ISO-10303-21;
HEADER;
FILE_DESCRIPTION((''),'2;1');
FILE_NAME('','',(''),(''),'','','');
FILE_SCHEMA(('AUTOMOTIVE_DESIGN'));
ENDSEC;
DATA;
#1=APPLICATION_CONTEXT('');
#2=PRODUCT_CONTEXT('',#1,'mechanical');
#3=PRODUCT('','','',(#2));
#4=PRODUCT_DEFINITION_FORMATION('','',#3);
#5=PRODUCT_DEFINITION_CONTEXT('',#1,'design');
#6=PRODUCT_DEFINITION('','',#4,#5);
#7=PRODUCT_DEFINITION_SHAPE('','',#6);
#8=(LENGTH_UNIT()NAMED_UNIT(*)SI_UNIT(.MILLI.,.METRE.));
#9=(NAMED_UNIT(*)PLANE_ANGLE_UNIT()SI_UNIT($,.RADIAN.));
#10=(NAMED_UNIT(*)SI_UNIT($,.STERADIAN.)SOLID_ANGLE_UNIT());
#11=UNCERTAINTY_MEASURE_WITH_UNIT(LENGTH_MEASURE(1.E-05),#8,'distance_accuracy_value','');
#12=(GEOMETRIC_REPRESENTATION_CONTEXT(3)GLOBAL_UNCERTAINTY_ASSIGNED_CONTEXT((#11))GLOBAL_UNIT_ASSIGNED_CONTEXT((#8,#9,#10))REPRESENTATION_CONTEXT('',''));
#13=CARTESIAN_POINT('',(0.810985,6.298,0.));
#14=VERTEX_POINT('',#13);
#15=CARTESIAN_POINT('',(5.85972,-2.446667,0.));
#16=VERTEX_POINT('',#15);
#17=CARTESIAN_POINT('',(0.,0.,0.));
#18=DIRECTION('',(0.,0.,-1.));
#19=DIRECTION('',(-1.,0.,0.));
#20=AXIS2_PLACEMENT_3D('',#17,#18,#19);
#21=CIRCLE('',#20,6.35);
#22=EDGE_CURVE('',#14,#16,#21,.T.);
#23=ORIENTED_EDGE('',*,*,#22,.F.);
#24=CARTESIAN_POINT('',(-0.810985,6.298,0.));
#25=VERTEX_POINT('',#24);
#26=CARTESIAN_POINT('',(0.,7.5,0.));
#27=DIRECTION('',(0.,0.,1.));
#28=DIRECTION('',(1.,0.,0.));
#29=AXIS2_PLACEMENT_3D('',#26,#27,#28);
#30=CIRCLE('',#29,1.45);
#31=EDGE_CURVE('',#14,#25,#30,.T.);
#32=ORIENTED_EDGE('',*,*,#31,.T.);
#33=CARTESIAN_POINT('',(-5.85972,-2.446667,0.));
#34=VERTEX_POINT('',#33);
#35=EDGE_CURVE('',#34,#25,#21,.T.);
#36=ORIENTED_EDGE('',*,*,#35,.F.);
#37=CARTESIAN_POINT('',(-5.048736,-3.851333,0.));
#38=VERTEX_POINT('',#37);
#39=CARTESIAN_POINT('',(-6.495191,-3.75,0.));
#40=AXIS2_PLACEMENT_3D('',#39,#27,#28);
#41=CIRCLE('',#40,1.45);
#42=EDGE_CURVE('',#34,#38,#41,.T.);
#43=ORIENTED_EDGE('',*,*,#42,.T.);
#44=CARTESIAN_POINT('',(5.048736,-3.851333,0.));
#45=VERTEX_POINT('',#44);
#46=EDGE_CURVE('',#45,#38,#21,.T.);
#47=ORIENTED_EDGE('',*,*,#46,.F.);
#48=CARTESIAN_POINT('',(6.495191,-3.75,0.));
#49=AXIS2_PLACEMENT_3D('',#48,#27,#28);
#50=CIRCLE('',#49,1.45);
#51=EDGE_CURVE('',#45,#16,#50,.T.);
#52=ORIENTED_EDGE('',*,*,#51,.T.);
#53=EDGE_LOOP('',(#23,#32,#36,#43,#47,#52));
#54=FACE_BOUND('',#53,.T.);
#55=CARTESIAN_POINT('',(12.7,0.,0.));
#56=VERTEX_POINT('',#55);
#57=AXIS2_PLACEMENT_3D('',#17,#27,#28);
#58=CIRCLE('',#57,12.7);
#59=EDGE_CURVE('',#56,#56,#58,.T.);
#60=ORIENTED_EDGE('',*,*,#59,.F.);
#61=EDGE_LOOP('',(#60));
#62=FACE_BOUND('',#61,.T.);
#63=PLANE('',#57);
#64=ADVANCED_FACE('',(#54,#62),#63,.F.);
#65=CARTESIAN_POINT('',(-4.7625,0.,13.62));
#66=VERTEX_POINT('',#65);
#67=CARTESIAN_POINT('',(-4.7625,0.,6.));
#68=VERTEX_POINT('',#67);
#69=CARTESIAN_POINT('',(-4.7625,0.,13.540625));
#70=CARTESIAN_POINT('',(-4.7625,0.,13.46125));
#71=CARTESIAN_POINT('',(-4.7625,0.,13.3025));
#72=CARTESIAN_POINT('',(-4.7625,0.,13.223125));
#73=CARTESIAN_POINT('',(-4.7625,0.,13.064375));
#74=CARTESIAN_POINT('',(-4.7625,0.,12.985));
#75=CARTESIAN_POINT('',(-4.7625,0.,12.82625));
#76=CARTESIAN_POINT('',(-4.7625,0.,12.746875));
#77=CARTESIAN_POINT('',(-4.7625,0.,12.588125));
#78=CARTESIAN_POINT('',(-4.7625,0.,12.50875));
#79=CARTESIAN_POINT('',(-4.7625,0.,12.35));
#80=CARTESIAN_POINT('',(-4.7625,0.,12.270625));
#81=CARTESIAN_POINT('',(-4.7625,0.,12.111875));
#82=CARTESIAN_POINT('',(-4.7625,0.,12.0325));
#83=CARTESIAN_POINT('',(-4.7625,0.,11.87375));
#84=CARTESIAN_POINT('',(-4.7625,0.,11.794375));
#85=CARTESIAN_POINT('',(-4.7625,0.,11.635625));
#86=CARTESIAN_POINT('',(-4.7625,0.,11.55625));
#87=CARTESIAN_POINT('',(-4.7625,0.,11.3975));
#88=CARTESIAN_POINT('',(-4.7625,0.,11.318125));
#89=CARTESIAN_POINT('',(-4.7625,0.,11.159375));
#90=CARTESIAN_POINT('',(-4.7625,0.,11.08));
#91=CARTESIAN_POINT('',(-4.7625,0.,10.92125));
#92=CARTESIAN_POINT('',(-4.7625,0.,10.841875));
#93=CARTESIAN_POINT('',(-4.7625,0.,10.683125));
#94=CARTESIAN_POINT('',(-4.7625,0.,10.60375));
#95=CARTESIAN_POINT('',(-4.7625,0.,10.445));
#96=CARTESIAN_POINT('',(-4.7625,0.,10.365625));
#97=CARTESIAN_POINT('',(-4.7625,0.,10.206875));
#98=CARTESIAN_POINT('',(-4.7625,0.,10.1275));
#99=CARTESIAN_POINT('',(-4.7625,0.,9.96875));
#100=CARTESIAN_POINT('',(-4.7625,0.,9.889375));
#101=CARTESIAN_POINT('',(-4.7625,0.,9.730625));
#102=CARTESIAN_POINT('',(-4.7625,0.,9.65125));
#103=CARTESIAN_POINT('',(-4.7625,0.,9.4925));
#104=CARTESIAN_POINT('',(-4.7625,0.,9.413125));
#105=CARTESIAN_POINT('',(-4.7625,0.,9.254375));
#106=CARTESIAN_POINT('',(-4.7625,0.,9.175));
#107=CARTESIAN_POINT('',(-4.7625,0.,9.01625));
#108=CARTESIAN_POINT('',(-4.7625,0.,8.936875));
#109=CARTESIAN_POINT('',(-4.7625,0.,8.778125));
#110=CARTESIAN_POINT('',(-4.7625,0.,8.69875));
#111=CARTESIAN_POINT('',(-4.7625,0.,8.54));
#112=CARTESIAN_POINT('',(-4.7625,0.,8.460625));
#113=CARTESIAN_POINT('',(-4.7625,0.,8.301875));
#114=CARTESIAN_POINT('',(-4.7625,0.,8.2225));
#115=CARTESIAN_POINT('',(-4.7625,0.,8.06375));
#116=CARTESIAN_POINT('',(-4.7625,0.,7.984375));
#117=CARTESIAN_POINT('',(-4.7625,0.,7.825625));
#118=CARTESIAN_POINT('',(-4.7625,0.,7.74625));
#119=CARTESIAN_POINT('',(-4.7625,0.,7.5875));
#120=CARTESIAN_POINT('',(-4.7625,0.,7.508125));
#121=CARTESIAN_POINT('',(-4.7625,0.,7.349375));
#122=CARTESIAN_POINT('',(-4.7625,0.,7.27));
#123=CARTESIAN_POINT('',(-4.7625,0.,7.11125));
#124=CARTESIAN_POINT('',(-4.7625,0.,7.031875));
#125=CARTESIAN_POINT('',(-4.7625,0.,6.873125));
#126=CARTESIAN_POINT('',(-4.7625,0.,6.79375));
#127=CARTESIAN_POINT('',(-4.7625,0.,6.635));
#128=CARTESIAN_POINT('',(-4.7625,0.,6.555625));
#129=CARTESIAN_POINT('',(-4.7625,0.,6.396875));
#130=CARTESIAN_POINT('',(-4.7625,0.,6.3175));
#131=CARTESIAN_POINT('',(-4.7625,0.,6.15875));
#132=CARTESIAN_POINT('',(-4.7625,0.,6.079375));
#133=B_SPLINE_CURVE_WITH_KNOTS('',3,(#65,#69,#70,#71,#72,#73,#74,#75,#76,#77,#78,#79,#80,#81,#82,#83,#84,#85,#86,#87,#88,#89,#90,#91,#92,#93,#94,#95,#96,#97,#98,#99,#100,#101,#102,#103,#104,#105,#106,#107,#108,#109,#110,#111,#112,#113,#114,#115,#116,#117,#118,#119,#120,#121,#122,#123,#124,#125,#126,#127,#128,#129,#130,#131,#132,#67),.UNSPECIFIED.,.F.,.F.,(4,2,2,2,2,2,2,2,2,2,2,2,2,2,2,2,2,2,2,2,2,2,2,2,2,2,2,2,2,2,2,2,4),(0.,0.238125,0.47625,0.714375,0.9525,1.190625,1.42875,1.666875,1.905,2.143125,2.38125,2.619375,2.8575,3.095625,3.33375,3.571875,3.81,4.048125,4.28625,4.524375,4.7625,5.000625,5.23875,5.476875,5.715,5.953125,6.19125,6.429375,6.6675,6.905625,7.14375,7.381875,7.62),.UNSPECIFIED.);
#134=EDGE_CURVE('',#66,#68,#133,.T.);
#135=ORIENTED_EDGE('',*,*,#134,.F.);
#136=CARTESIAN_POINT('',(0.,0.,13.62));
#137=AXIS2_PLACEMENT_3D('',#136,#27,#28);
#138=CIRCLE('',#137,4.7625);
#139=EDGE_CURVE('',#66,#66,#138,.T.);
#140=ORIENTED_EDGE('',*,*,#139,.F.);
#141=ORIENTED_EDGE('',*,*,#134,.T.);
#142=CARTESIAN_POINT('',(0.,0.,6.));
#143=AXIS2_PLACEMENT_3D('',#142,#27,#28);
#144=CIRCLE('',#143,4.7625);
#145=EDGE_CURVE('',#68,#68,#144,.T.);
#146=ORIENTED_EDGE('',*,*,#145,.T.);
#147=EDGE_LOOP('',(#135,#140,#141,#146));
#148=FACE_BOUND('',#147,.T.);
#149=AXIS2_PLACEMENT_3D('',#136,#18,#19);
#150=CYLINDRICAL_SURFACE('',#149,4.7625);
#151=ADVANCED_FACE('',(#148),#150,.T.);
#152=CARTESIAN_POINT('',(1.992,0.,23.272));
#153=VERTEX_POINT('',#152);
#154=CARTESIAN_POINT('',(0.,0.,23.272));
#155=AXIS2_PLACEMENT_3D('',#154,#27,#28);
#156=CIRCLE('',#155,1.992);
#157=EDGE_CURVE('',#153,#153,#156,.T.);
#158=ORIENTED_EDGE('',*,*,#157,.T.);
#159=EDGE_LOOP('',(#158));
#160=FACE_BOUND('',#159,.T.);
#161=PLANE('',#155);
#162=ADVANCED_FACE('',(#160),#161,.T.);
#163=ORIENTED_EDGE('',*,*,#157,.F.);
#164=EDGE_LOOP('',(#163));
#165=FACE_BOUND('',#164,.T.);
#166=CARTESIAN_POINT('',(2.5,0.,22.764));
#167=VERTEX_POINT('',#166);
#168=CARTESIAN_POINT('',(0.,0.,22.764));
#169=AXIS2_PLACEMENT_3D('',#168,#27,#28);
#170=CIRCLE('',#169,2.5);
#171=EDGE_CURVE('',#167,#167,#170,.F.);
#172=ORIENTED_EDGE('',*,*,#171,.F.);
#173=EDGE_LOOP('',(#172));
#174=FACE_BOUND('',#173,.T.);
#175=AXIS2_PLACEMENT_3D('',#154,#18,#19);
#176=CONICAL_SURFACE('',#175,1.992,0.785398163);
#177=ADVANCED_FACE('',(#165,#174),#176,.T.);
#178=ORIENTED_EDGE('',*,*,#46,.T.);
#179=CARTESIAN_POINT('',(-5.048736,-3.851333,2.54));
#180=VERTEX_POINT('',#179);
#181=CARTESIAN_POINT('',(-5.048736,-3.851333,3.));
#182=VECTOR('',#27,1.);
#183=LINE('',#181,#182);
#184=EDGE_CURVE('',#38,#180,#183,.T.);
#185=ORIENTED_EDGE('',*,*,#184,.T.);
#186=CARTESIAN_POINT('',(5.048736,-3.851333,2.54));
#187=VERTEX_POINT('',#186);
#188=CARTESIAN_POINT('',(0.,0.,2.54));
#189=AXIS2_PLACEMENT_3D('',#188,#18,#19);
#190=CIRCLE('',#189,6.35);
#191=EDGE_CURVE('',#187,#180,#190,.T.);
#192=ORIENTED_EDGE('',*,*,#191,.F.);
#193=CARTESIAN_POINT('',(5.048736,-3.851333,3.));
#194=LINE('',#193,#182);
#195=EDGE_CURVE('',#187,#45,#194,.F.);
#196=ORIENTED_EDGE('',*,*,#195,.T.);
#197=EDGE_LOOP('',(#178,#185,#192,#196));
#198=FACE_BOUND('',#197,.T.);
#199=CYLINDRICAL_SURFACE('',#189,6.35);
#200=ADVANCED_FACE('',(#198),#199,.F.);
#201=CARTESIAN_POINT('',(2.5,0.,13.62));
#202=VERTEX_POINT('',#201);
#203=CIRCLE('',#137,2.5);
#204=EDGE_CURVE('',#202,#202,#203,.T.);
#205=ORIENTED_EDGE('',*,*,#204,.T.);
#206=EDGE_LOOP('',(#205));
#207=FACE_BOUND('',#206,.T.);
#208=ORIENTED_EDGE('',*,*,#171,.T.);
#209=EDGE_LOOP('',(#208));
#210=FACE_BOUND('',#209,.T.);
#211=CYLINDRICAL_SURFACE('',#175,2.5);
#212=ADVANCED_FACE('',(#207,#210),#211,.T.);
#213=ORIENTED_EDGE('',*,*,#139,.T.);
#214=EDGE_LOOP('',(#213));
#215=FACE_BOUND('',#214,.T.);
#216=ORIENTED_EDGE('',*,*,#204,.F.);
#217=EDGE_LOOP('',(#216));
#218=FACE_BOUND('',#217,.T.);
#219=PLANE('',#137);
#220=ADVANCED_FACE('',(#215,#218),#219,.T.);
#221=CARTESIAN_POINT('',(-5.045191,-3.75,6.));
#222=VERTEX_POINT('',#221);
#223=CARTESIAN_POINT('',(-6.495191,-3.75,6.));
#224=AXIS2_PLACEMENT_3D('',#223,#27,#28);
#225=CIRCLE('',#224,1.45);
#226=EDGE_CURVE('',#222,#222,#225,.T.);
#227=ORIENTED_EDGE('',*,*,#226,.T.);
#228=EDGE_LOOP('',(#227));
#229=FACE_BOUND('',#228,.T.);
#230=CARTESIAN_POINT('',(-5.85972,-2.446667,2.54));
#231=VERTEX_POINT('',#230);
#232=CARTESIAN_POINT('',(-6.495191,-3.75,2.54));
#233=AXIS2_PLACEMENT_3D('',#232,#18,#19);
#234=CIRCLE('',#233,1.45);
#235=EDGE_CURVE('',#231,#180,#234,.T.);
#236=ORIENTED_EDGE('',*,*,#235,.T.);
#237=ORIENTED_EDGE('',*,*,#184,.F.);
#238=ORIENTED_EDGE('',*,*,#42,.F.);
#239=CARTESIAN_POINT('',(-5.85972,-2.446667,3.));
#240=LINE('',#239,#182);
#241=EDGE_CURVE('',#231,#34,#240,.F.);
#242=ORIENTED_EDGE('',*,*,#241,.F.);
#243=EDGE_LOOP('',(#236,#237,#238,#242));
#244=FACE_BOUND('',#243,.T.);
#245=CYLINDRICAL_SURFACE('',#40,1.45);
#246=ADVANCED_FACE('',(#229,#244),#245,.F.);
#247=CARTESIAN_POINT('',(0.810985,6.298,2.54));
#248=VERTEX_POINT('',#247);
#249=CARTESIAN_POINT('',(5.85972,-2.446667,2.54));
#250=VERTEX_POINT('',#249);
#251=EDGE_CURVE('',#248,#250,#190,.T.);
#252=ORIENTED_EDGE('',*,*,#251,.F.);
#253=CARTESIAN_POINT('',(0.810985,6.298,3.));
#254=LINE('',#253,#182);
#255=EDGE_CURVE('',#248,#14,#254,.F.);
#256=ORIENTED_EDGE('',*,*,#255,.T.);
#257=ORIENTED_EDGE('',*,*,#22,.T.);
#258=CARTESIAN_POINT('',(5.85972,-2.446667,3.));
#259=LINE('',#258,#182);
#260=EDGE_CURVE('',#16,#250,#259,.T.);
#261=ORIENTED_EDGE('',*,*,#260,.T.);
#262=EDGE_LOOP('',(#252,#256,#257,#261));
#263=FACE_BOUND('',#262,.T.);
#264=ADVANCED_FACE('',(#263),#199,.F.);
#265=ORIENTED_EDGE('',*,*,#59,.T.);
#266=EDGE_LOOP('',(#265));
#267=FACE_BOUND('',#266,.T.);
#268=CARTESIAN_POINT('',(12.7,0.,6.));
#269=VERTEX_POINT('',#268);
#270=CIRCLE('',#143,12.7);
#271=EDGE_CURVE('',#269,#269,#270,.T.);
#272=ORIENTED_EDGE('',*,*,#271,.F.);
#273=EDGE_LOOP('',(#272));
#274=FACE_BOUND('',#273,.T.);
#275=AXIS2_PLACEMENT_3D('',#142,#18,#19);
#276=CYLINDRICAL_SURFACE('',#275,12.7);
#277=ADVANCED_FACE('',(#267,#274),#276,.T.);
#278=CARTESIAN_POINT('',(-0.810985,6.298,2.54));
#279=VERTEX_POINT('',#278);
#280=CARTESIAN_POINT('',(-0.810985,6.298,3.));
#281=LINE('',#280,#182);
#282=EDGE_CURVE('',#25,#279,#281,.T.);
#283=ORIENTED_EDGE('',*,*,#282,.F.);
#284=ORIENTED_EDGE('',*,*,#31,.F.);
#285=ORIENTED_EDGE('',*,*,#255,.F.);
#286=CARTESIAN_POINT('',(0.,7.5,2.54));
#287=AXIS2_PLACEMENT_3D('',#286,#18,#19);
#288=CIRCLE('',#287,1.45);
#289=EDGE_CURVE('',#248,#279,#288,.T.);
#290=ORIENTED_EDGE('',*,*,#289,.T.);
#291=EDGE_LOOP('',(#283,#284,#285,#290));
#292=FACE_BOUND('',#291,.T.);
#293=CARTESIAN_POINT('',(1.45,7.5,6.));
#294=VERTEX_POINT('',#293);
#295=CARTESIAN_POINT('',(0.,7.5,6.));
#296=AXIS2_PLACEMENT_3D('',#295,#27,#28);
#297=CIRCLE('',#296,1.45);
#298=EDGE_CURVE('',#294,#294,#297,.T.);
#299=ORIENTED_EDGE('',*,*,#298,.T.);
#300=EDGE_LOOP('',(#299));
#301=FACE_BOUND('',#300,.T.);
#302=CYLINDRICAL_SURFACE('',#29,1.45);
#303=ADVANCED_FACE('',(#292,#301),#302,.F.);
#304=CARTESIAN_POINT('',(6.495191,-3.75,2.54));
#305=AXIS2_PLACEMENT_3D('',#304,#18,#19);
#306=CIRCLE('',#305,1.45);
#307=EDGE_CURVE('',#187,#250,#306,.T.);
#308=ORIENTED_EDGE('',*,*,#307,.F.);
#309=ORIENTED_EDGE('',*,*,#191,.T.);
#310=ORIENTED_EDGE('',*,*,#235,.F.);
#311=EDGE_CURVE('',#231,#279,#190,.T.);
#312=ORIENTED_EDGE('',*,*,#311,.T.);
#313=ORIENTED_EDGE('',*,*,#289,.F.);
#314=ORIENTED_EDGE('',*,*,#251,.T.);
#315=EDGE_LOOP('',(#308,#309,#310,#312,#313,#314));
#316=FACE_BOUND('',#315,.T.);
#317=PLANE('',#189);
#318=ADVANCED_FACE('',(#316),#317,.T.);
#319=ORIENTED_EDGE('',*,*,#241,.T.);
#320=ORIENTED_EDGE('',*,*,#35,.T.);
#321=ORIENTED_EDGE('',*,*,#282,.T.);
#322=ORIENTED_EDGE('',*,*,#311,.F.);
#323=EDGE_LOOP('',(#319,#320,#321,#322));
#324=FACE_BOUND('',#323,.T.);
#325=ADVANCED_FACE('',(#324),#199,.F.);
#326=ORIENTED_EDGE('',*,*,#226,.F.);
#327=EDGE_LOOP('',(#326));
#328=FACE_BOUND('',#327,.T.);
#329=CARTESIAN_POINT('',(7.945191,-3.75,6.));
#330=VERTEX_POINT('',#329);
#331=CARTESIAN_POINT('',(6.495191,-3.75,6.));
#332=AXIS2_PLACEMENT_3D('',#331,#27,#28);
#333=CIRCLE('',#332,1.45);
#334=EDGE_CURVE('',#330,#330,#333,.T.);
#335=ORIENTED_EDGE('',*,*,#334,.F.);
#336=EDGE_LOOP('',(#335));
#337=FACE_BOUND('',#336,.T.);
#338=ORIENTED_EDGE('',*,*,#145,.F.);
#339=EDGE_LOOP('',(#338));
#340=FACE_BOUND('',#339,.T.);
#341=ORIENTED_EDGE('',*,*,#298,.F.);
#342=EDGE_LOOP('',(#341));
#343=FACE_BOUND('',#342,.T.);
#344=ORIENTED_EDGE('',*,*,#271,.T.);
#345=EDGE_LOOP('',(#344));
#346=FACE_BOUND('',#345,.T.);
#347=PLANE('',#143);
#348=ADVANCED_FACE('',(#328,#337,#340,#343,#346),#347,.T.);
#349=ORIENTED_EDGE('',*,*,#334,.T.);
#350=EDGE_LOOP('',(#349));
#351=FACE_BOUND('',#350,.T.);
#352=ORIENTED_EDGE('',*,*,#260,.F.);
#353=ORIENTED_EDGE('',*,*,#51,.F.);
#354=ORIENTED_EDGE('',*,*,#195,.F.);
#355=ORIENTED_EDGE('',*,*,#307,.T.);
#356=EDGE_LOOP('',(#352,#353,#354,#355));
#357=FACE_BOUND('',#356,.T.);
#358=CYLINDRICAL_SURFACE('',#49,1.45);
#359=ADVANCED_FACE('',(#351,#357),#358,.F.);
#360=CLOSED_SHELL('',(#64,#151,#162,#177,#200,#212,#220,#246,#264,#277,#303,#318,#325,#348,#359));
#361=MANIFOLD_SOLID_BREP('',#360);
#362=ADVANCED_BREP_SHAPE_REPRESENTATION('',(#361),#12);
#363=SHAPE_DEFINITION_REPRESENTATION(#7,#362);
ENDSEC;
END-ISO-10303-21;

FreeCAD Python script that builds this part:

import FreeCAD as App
import Part
import Sketcher
Q = App.Units.Quantity


def edges_at(feature, points):
    """Names of the edges that pass closest to the given points."""
    edges = feature.Shape.Edges
    near = lambda p: min(range(len(edges)), key=lambda i: edges[i].distToShape(Part.Vertex(*p))[0])
    return sorted({f"Edge{near(p) + 1}" for p in points})

doc = App.newDocument("Part")
body = doc.addObject("PartDesign::Body", "Body")

sketch1 = doc.addObject("Sketcher::SketchObject", "Sketch")
body.addObject(sketch1)
sketch1.AttachmentSupport = (doc.XY_Plane, [""])
sketch1.MapMode = "FlatFace"
sketch1.addGeometry(Part.Circle(App.Vector(0, 0, 0), App.Vector(0, 0, 1), 13), False)
sketch1.addConstraint([
    Sketcher.Constraint("Coincident", 0, 3, -1, 1),
    Sketcher.Constraint("Diameter", 0, Q("1 in")),
])
pad1 = doc.addObject("PartDesign::Pad", "Pad")
body.addObject(pad1)
pad1.Profile = sketch1
pad1.Length = 6

sketch2 = doc.addObject("Sketcher::SketchObject", "Sketch001")
body.addObject(sketch2)
sketch2.AttachmentSupport = (doc.XY_Plane, [""])
sketch2.MapMode = "FlatFace"
sketch2.addGeometry(Part.Circle(App.Vector(0, 0, 0), App.Vector(0, 0, 1), 6), False)
sketch2.addConstraint([
    Sketcher.Constraint("Coincident", 0, 3, -1, 1),
    Sketcher.Constraint("Diameter", 0, Q("0.5 in")),
])
pocket1 = doc.addObject("PartDesign::Pocket", "Pocket")
body.addObject(pocket1)
pocket1.Profile = sketch2
pocket1.Length = Q("0.1 in")
pocket1.Reversed = True

sketch3 = doc.addObject("Sketcher::SketchObject", "Sketch002")
body.addObject(sketch3)
sketch3.AttachmentSupport = (doc.XY_Plane, [""])
sketch3.MapMode = "FlatFace"
sketch3.AttachmentOffset = App.Placement(App.Vector(0, 0, 6), App.Rotation())
sketch3.addGeometry([
    Part.Circle(App.Vector(0, 7.5, 0), App.Vector(0, 0, 1), 1.4),
    Part.Circle(App.Vector(6.5, -3.8, 0), App.Vector(0, 0, 1), 1.4),
    Part.Circle(App.Vector(-6.5, -3.8, 0), App.Vector(0, 0, 1), 1.4),
], False)
sketch3.addConstraint([
    Sketcher.Constraint("Equal", 0, 1),
    Sketcher.Constraint("Equal", 1, 2),
    Sketcher.Constraint("Symmetric", 1, 3, 2, 3, -2),
    Sketcher.Constraint("PointOnObject", 0, 3, -2),
    Sketcher.Constraint("Diameter", 0, Q("2.9 mm")),
    Sketcher.Constraint("DistanceY", -1, 1, 0, 3, Q("7.5 mm")),
    Sketcher.Constraint("DistanceY", 1, 3, -1, 1, Q("3.75 mm")),
    Sketcher.Constraint("DistanceX", -1, 1, 1, 3, Q("6.495191 mm")),
])
pocket2 = doc.addObject("PartDesign::Pocket", "Pocket001")
body.addObject(pocket2)
pocket2.Profile = sketch3
pocket2.Type = "ThroughAll"

sketch4 = doc.addObject("Sketcher::SketchObject", "Sketch003")
body.addObject(sketch4)
sketch4.AttachmentSupport = (doc.XY_Plane, [""])
sketch4.MapMode = "FlatFace"
sketch4.AttachmentOffset = App.Placement(App.Vector(0, 0, 6), App.Rotation())
sketch4.addGeometry(Part.Circle(App.Vector(0, 0, 0), App.Vector(0, 0, 1), 2.5), False)
sketch4.addConstraint([
    Sketcher.Constraint("Coincident", 0, 3, -1, 1),
    Sketcher.Constraint("Diameter", 0, Q("5 mm")),
])
pad2 = doc.addObject("PartDesign::Pad", "Pad001")
body.addObject(pad2)
pad2.Profile = sketch4
pad2.Length = Q("0.68 in")
doc.recompute()

chamfer = doc.addObject("PartDesign::Chamfer", "Chamfer")
body.addObject(chamfer)
chamfer.Base = (pad2, edges_at(pad2, [(-2.5, 0, 23.272)]))
chamfer.Size = Q("0.02 in")

sketch5 = doc.addObject("Sketcher::SketchObject", "Sketch004")
body.addObject(sketch5)
sketch5.AttachmentSupport = (doc.XY_Plane, [""])
sketch5.MapMode = "FlatFace"
sketch5.AttachmentOffset = App.Placement(App.Vector(0, 0, 6), App.Rotation())
sketch5.addGeometry(Part.Circle(App.Vector(0, 0, 0), App.Vector(0, 0, 1), 4.8), False)
sketch5.addConstraint([
    Sketcher.Constraint("Coincident", 0, 3, -1, 1),
    Sketcher.Constraint("Diameter", 0, Q("0.375 in")),
])
pad3 = doc.addObject("PartDesign::Pad", "Pad002")
body.addObject(pad3)
pad3.Profile = sketch5
pad3.Length = Q("0.3 in")

doc.recompute()
